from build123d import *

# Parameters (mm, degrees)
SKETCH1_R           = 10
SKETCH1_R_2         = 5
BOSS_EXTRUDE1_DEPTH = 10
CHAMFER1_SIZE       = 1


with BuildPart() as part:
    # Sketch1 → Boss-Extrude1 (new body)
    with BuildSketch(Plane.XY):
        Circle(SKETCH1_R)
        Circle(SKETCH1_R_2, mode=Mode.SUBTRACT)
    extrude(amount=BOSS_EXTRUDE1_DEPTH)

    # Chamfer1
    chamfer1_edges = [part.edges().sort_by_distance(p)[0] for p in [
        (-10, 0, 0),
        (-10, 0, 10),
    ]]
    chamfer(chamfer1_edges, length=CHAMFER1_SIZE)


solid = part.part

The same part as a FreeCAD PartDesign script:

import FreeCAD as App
import Part
import Sketcher
Q = App.Units.Quantity


def edges_at(feature, points):
    """Names of the edges that pass closest to the given points."""
    edges = feature.Shape.Edges
    near = lambda p: min(range(len(edges)), key=lambda i: edges[i].distToShape(Part.Vertex(*p))[0])
    return sorted({f"Edge{near(p) + 1}" for p in points})

doc = App.newDocument("Part")
params = doc.addObject("Spreadsheet::Sheet", "Params")
for row, (alias, value) in enumerate([
    ("sketch1_diameter", "20 mm"),
    ("sketch1_diameter2", "10 mm"),
    ("pad1_length", "10 mm"),
    ("chamfer_size", "1 mm"),
], start=1):
    params.set(f"A{row}", alias)
    params.set(f"B{row}", "=" + value)
    params.setAlias(f"B{row}", alias)

body = doc.addObject("PartDesign::Body", "Body")

# Sketch on XY plane
sketch1 = doc.addObject("Sketcher::SketchObject", "Sketch")
body.addObject(sketch1)
sketch1.AttachmentSupport = (doc.XY_Plane, [""])
sketch1.MapMode = "FlatFace"
sketch1.addGeometry(Part.Circle(App.Vector(0, 0, 0), App.Vector(0, 0, 1), 10), False)
sketch1.addGeometry(Part.Circle(App.Vector(0, 0, 0), App.Vector(0, 0, 1), 5), False)
sketch1.addConstraint(Sketcher.Constraint("Coincident", 0, 3, -1, 1))
sketch1.addConstraint(Sketcher.Constraint("Coincident", 1, 3, -1, 1))
sketch1.addConstraint(Sketcher.Constraint("Diameter", 0, Q("20 mm")))
sketch1.addConstraint(Sketcher.Constraint("Diameter", 1, Q("10 mm")))
sketch1.setExpression("Constraints[2]", "Params.sketch1_diameter")
sketch1.setExpression("Constraints[3]", "Params.sketch1_diameter2")
pad1 = doc.addObject("PartDesign::Pad", "Pad")
body.addObject(pad1)
pad1.Profile = sketch1
pad1.setExpression("Length", "Params.pad1_length")
doc.recompute()

chamfer = doc.addObject("PartDesign::Chamfer", "Chamfer")
body.addObject(chamfer)
chamfer.Base = (pad1, edges_at(pad1, [(-10, 0, 0), (-10, 0, 10)]))
chamfer.setExpression("Size", "Params.chamfer_size")

doc.recompute()
